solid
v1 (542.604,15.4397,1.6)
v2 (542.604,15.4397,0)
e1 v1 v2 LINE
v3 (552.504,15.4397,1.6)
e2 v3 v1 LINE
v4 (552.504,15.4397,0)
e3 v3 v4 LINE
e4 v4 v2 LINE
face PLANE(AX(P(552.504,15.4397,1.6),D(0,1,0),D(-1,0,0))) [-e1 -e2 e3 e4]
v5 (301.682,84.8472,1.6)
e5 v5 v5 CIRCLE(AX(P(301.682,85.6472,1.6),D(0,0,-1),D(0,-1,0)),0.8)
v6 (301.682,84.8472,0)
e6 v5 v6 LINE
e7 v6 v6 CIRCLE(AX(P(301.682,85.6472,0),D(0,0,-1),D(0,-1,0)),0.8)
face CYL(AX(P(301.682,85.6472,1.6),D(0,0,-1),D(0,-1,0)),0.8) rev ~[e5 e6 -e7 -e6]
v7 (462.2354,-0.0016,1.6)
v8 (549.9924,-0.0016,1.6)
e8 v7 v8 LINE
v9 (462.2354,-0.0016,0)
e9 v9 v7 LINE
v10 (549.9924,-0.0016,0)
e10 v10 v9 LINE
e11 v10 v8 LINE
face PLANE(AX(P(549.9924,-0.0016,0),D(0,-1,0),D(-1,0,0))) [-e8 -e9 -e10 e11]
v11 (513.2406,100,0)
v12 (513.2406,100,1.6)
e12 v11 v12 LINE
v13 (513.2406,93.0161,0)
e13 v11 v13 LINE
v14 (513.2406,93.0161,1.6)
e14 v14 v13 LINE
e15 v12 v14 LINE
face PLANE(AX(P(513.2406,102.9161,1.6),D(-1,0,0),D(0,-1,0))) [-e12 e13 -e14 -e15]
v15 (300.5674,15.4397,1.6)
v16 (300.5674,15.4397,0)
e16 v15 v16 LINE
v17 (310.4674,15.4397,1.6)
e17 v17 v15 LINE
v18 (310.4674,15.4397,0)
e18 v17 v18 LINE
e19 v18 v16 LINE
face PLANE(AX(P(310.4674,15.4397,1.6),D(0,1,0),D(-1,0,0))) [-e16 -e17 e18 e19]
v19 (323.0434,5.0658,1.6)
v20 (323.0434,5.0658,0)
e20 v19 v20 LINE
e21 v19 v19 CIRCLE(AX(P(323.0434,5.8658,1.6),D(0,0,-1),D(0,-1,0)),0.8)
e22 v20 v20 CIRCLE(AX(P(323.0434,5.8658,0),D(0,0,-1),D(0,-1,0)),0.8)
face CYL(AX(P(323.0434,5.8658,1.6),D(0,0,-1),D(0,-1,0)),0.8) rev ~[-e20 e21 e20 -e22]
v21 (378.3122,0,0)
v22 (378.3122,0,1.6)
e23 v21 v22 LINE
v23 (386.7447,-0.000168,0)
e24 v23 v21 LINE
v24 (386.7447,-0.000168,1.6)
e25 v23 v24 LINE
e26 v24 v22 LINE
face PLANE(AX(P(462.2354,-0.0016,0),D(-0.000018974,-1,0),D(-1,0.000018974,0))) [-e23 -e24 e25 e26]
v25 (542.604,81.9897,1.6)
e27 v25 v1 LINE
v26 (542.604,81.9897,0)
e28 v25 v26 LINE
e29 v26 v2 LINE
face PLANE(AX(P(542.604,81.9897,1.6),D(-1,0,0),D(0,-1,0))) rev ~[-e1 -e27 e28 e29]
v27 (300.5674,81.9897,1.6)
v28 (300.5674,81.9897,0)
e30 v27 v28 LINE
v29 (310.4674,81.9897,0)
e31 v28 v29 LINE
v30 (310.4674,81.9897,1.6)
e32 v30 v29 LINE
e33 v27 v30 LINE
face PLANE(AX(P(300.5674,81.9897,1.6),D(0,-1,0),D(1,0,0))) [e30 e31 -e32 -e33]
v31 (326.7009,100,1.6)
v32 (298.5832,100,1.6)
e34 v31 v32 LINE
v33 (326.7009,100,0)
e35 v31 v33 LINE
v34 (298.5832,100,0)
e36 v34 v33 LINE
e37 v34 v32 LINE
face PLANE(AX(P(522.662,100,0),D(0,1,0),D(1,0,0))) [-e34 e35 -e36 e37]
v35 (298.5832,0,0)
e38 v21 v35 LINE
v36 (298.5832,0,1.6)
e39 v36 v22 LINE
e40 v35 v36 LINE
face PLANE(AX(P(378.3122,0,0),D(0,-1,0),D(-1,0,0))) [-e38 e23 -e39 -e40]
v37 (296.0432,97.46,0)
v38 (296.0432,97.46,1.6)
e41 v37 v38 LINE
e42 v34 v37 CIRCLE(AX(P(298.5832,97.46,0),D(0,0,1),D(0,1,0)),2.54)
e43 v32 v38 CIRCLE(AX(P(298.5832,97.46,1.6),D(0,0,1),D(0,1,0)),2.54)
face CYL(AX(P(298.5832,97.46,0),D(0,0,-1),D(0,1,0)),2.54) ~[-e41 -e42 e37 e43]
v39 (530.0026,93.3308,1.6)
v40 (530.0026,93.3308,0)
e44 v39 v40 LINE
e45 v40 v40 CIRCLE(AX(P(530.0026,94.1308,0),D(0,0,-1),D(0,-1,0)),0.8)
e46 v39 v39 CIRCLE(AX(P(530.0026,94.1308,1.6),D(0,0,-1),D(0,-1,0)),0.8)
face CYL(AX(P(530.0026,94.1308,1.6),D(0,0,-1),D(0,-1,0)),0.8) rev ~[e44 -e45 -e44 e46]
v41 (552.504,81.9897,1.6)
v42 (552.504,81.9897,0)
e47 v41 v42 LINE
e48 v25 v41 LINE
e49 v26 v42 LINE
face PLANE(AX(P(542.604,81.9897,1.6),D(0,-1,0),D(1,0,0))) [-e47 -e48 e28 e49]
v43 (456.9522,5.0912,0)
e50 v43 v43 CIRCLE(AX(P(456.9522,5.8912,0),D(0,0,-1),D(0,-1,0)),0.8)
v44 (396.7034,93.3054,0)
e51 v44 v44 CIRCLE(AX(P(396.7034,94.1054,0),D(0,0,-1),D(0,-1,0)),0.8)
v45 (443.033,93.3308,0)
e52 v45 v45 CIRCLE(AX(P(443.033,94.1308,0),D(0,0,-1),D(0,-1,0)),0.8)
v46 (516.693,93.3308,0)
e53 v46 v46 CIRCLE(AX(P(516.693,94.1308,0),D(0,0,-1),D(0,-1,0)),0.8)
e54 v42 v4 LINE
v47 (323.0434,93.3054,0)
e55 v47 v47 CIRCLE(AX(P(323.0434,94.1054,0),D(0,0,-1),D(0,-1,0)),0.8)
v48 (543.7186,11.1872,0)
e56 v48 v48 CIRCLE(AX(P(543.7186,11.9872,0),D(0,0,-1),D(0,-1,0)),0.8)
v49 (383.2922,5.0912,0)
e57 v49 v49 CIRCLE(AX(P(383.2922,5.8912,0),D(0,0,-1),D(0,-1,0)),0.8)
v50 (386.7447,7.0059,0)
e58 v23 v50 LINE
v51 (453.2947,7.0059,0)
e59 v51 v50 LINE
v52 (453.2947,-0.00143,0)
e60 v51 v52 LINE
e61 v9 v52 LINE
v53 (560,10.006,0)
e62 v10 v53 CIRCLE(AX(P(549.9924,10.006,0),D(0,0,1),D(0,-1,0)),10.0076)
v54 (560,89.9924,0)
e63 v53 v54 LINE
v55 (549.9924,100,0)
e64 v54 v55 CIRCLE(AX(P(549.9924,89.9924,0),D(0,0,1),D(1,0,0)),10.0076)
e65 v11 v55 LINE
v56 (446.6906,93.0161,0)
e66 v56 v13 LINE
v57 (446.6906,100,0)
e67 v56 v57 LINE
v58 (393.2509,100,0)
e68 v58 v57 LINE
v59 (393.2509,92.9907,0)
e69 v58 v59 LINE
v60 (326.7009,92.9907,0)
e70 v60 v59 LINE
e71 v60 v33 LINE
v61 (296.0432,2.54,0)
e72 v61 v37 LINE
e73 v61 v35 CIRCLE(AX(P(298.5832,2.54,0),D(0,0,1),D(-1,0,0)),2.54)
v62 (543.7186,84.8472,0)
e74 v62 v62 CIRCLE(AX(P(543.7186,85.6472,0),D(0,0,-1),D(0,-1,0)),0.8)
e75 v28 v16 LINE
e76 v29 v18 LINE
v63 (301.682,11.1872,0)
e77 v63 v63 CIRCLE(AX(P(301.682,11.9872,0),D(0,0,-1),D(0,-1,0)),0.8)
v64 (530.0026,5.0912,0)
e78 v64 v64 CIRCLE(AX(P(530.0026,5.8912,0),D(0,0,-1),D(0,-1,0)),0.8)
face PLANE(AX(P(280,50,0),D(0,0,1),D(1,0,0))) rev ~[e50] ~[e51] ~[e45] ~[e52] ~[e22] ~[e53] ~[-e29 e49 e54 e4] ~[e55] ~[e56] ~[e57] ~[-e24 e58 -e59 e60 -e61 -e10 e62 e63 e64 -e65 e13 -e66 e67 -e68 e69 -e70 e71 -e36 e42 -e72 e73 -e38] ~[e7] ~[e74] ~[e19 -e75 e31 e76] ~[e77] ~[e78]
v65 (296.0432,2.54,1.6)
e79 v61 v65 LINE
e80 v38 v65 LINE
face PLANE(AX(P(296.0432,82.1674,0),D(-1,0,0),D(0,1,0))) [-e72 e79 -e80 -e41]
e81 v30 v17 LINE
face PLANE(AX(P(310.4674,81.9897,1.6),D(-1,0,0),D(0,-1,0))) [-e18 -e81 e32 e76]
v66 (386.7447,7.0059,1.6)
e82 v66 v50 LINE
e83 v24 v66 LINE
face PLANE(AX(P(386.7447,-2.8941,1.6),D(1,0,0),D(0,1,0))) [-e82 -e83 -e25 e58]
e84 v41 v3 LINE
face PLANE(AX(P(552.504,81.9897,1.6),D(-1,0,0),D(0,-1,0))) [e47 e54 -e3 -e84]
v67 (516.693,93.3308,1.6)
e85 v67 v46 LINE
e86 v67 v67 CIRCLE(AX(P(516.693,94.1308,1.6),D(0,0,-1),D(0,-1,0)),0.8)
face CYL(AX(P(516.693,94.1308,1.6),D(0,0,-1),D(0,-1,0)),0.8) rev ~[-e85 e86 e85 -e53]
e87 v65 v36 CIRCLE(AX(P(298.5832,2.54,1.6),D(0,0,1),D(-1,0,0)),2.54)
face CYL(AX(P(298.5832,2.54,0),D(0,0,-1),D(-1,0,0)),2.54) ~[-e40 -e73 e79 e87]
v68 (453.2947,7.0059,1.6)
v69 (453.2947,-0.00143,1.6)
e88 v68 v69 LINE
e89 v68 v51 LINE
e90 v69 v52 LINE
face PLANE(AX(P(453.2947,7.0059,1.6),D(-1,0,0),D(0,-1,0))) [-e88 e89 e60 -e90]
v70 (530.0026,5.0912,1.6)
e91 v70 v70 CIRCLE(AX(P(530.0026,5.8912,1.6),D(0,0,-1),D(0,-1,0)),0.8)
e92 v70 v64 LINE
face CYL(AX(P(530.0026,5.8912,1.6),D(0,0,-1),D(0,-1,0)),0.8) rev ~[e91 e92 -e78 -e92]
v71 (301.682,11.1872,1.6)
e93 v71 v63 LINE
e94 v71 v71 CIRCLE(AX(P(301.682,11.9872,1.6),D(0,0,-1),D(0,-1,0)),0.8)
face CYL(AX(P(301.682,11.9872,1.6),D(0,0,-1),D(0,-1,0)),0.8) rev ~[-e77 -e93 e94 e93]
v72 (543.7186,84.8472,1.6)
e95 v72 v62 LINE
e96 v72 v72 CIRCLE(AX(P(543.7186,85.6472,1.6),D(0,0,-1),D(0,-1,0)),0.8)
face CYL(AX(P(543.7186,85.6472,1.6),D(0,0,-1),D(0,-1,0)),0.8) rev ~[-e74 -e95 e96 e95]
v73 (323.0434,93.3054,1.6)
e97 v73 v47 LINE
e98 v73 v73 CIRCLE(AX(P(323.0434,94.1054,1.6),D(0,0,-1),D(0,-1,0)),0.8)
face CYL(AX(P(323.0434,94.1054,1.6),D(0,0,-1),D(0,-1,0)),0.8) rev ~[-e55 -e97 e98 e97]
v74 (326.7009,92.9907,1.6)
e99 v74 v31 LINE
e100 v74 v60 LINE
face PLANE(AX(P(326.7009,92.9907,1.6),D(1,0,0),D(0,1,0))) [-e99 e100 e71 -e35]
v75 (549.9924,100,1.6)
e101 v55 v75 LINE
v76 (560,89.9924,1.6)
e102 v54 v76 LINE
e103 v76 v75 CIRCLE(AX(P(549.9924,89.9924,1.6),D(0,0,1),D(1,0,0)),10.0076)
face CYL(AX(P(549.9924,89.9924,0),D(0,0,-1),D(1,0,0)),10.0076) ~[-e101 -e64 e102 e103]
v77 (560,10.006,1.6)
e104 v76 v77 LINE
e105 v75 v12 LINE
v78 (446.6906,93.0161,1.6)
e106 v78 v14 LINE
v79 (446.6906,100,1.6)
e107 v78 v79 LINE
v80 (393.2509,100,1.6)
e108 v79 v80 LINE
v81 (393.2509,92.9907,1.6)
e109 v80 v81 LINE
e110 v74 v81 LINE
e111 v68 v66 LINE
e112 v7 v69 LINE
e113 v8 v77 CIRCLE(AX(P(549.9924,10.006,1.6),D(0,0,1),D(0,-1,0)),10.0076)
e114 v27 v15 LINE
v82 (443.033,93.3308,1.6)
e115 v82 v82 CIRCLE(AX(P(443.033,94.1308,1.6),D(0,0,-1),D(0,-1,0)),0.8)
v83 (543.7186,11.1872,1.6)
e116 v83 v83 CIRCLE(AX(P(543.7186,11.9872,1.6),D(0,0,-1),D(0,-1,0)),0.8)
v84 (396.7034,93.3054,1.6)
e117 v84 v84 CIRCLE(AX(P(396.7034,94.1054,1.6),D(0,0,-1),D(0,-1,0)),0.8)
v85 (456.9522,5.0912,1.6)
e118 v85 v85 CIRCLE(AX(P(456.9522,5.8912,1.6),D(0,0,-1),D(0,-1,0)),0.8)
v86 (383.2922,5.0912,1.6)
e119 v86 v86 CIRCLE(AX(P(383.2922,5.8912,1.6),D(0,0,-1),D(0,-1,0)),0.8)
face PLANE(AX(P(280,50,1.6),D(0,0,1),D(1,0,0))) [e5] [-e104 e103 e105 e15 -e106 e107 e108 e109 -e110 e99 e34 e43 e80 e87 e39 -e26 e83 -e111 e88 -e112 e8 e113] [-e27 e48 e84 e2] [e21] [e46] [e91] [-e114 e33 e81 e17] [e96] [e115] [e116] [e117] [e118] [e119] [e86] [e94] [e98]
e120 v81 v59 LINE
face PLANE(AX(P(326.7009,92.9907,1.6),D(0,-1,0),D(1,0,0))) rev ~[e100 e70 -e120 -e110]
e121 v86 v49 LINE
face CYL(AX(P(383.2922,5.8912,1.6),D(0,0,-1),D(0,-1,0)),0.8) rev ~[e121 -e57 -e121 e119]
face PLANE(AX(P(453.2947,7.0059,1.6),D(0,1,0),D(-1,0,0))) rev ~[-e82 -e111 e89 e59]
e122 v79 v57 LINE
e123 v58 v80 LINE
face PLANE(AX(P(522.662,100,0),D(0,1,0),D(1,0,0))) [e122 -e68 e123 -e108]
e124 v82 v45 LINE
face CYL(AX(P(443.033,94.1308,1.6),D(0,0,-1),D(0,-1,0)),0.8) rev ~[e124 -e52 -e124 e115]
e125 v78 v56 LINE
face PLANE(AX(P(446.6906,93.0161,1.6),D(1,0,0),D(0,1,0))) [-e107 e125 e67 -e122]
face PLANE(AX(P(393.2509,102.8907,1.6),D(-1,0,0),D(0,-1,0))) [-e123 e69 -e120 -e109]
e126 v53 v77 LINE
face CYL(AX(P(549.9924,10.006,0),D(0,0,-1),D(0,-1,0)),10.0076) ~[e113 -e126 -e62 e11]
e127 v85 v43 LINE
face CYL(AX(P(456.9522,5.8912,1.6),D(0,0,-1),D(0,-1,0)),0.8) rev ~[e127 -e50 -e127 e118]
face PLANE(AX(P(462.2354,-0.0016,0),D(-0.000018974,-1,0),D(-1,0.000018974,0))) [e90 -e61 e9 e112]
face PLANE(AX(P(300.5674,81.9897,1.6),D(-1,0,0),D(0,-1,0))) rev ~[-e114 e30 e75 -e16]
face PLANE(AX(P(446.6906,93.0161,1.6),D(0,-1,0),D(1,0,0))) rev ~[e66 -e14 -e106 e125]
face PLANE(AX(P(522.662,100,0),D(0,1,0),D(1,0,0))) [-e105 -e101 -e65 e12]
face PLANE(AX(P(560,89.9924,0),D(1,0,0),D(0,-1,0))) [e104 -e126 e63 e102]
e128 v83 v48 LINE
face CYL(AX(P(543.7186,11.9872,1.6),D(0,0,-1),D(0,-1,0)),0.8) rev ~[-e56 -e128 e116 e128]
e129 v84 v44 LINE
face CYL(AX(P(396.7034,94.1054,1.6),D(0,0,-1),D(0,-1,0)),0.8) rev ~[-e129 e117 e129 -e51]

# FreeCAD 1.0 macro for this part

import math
import FreeCAD as App
import Part
import Sketcher
from FreeCAD import Vector
Q = App.Units.Quantity


def add_polygon(sketch, points):
    """Adds a closed chain of lines whose ends are joined by coincident constraints."""
    first, n = sketch.GeometryCount, len(points)
    for a, b in zip(points, points[1:] + points[:1]):
        sketch.addGeometry(Part.LineSegment(App.Vector(*a, 0), App.Vector(*b, 0)), False)
    for i in range(n):
        sketch.addConstraint(Sketcher.Constraint("Coincident", first + i, 2, first + (i + 1) % n, 1))

doc = App.newDocument("Part")
params = doc.addObject("Spreadsheet::Sheet", "Params")
for row, (alias, value) in enumerate([
    ("sketch1_radius", "0.1 in"),
    ("sketch1_radius2", "0.394 in"),
    ("sketch1_width", "9.898 in"),
    ("sketch1_width2", "3.455 in"),
    ("sketch1_height", "3.737 in"),
    ("pad1_length", "0.0629921 in"),
    ("sketch2_diameter", "0.063 in"),
    ("hole_diameter", "0.0629921 in"),
    ("hole_depth", "8 mm"),
    ("pocket1_length", "0.0629921 in"),
], start=1):
    params.set(f"A{row}", alias)
    params.set(f"B{row}", "=" + value)
    params.setAlias(f"B{row}", alias)

body = doc.addObject("PartDesign::Body", "Body")

# Sketch on XY plane
sketch1 = body.newObject("Sketcher::SketchObject", "Sketch")
sketch1.AttachmentSupport = (doc.getObject("XY_Plane"), [""])
sketch1.MapMode = "FlatFace"
sketch1.addGeometry(Part.LineSegment(Vector(560, 10, 0), Vector(560, 90, 0)), False)
sketch1.addGeometry(Part.ArcOfCircle(Part.Circle(Vector(550, 90, 0), Vector(0, 0, 1), 10), math.radians(0), math.radians(90)), False)
sketch1.addGeometry(Part.LineSegment(Vector(550, 100, 0), Vector(298.6, 100, 0)), False)
sketch1.addGeometry(Part.ArcOfCircle(Part.Circle(Vector(298.6, 97.5, 0), Vector(0, 0, 1), 2.5), math.radians(90), math.radians(180)), False)
sketch1.addGeometry(Part.LineSegment(Vector(296, 97.5, 0), Vector(296, 2.5, 0)), False)
sketch1.addGeometry(Part.ArcOfCircle(Part.Circle(Vector(298.6, 2.5, 0), Vector(0, 0, 1), 2.5), math.radians(180), math.radians(270)), False)
sketch1.addGeometry(Part.LineSegment(Vector(298.6, 0, 0), Vector(378.3, 0, 0)), False)
sketch1.addGeometry(Part.LineSegment(Vector(378.3, 0, 0), Vector(462.2, 0, 0)), False)
sketch1.addGeometry(Part.LineSegment(Vector(462.2, 0, 0), Vector(550, 0, 0)), False)
sketch1.addGeometry(Part.ArcOfCircle(Part.Circle(Vector(550, 10, 0), Vector(0, 0, 1), 10), math.radians(-90), math.radians(0)), False)
sketch1.addConstraint(Sketcher.Constraint("Tangent", 0, 2, 1, 1))
sketch1.addConstraint(Sketcher.Constraint("Tangent", 1, 2, 2, 1))
sketch1.addConstraint(Sketcher.Constraint("Tangent", 2, 2, 3, 1))
sketch1.addConstraint(Sketcher.Constraint("Tangent", 3, 2, 4, 1))
sketch1.addConstraint(Sketcher.Constraint("Tangent", 4, 2, 5, 1))
sketch1.addConstraint(Sketcher.Constraint("Tangent", 5, 2, 6, 1))
sketch1.addConstraint(Sketcher.Constraint("Coincident", 6, 2, 7, 1))
sketch1.addConstraint(Sketcher.Constraint("Coincident", 7, 2, 8, 1))
sketch1.addConstraint(Sketcher.Constraint("Tangent", 8, 2, 9, 1))
sketch1.addConstraint(Sketcher.Constraint("Tangent", 9, 2, 0, 1))
sketch1.addConstraint(Sketcher.Constraint("Vertical", 0))
sketch1.addConstraint(Sketcher.Constraint("Horizontal", 2))
sketch1.addConstraint(Sketcher.Constraint("Vertical", 4))
sketch1.addConstraint(Sketcher.Constraint("Horizontal", 6))
sketch1.addConstraint(Sketcher.Constraint("Horizontal", 8))
sketch1.addConstraint(Sketcher.Constraint("Equal", 3, 5))
sketch1.addConstraint(Sketcher.Constraint("Equal", 1, 9))
sketch1.addConstraint(Sketcher.Constraint("PointOnObject", 5, 2, -1))
sketch1.addConstraint(Sketcher.Constraint("Radius", 3, Q("0.1 in")))
sketch1.addConstraint(Sketcher.Constraint("Angle", 7, Q("-0.001 deg")))
sketch1.addConstraint(Sketcher.Constraint("Radius", 1, Q("0.394 in")))
sketch1.addConstraint(Sketcher.Constraint("DistanceX", 2, 2, 2, 1, Q("9.898 in")))
sketch1.addConstraint(Sketcher.Constraint("DistanceX", 8, 1, 8, 2, Q("3.455 in")))
sketch1.addConstraint(Sketcher.Constraint("DistanceY", 4, 2, 4, 1, Q("3.737 in")))
sketch1.addConstraint(Sketcher.Constraint("DistanceX", 6, 1, 6, 2, Q("79.729 mm")))
sketch1.addConstraint(Sketcher.Constraint("DistanceX", -1, 1, 1, 3, Q("549.9924 mm")))
sketch1.setExpression("Constraints[18]", "Params.sketch1_radius")
sketch1.setExpression("Constraints[20]", "Params.sketch1_radius2")
sketch1.setExpression("Constraints[21]", "Params.sketch1_width")
sketch1.setExpression("Constraints[22]", "Params.sketch1_width2")
sketch1.setExpression("Constraints[23]", "Params.sketch1_height")
pad1 = body.newObject("PartDesign::Pad", "Pad")
pad1.Profile = sketch1
pad1.setExpression("Length", "Params.pad1_length")

# Sketch on XY plane
sketch2 = body.newObject("Sketcher::SketchObject", "Sketch001")
sketch2.AttachmentSupport = (doc.getObject("XY_Plane"), [""])
sketch2.MapMode = "FlatFace"
sketch2.AttachmentOffset = App.Placement(Vector(0, 0, 0.0629921 * 25.4), App.Rotation())
sketch2.addGeometry(Part.Circle(Vector(530, 94.1, 0), Vector(0, 0, 1), 0.8), False)
sketch2.addGeometry(Part.Circle(Vector(516.7, 94.1, 0), Vector(0, 0, 1), 0.8), False)
sketch2.addGeometry(Part.Circle(Vector(543.7, 85.6, 0), Vector(0, 0, 1), 0.8), False)
sketch2.addGeometry(Part.Circle(Vector(543.7, 12, 0), Vector(0, 0, 1), 0.8), False)
sketch2.addGeometry(Part.Circle(Vector(530, 5.9, 0), Vector(0, 0, 1), 0.8), False)
sketch2.addGeometry(Part.Circle(Vector(443, 94.1, 0), Vector(0, 0, 1), 0.8), False)
sketch2.addGeometry(Part.Circle(Vector(457, 5.9, 0), Vector(0, 0, 1), 0.8), False)
sketch2.addGeometry(Part.Circle(Vector(383.3, 5.9, 0), Vector(0, 0, 1), 0.8), False)
sketch2.addGeometry(Part.Circle(Vector(396.7, 94.1, 0), Vector(0, 0, 1), 0.8), False)
sketch2.addGeometry(Part.Circle(Vector(323, 94.1, 0), Vector(0, 0, 1), 0.8), False)
sketch2.addGeometry(Part.Circle(Vector(301.7, 85.6, 0), Vector(0, 0, 1), 0.8), False)
sketch2.addGeometry(Part.Circle(Vector(323, 5.9, 0), Vector(0, 0, 1), 0.8), False)
sketch2.addGeometry(Part.Circle(Vector(301.7, 12, 0), Vector(0, 0, 1), 0.8), False)
sketch2.addConstraint(Sketcher.Constraint("Equal", 0, 1))
sketch2.addConstraint(Sketcher.Constraint("Equal", 1, 2))
sketch2.addConstraint(Sketcher.Constraint("Equal", 2, 3))
sketch2.addConstraint(Sketcher.Constraint("Equal", 3, 4))
sketch2.addConstraint(Sketcher.Constraint("Equal", 4, 5))
sketch2.addConstraint(Sketcher.Constraint("Equal", 5, 6))
sketch2.addConstraint(Sketcher.Constraint("Equal", 6, 7))
sketch2.addConstraint(Sketcher.Constraint("Equal", 7, 8))
sketch2.addConstraint(Sketcher.Constraint("Equal", 8, 9))
sketch2.addConstraint(Sketcher.Constraint("Equal", 9, 10))
sketch2.addConstraint(Sketcher.Constraint("Equal", 10, 11))
sketch2.addConstraint(Sketcher.Constraint("Equal", 11, 12))
sketch2.addConstraint(Sketcher.Constraint("Horizontal", 0, 3, 1, 3))
sketch2.addConstraint(Sketcher.Constraint("Horizontal", 1, 3, 5, 3))
sketch2.addConstraint(Sketcher.Constraint("Horizontal", 4, 3, 6, 3))
sketch2.addConstraint(Sketcher.Constraint("Horizontal", 6, 3, 7, 3))
sketch2.addConstraint(Sketcher.Constraint("Horizontal", 8, 3, 9, 3))
sketch2.addConstraint(Sketcher.Constraint("Horizontal", 2, 3, 10, 3))
sketch2.addConstraint(Sketcher.Constraint("Horizontal", 3, 3, 12, 3))
sketch2.addConstraint(Sketcher.Constraint("Vertical", 2, 3, 3, 3))
sketch2.addConstraint(Sketcher.Constraint("Vertical", 0, 3, 4, 3))
sketch2.addConstraint(Sketcher.Constraint("Vertical", 9, 3, 11, 3))
sketch2.addConstraint(Sketcher.Constraint("Vertical", 10, 3, 12, 3))
sketch2.addConstraint(Sketcher.Constraint("Diameter", 0, Q("0.063 in")))
sketch2.addConstraint(Sketcher.Constraint("DistanceY", 3, 3, 2, 3, Q("2.9 in")))
sketch2.addConstraint(Sketcher.Constraint("DistanceX", 5, 3, 1, 3, Q("2.9 in")))
sketch2.addConstraint(Sketcher.Constraint("DistanceX", 7, 3, 6, 3, Q("2.9 in")))
sketch2.addConstraint(Sketcher.Constraint("DistanceX", 9, 3, 8, 3, Q("2.9 in")))
sketch2.addConstraint(Sketcher.Constraint("DistanceX", 0, 3, 2, 3, Q("0.54 in")))
sketch2.addConstraint(Sketcher.Constraint("DistanceY", 4, 3, 3, 3, Q("0.24 in")))
sketch2.addConstraint(Sketcher.Constraint("DistanceX", -1, 1, 2, 3, Q("21.4062441 in")))
sketch2.addConstraint(Sketcher.Constraint("DistanceX", 1, 3, 0, 3, Q("0.524 in")))
sketch2.addConstraint(Sketcher.Constraint("DistanceY", 2, 3, 0, 3, Q("0.334 in")))
sketch2.addConstraint(Sketcher.Constraint("DistanceX", 6, 3, 4, 3, Q("2.876 in")))
sketch2.addConstraint(Sketcher.Constraint("DistanceX", 8, 3, 5, 3, Q("1.824 in")))
sketch2.addConstraint(Sketcher.Constraint("DistanceY", 8, 3, 5, 3, Q("0.001 in")))
sketch2.addConstraint(Sketcher.Constraint("DistanceX", 10, 3, 9, 3, Q("0.841 in")))
sketch2.addConstraint(Sketcher.Constraint("DistanceY", 11, 3, 7, 3, Q("0.001 in")))
sketch2.addConstraint(Sketcher.Constraint("DistanceY", -1, 1, 0, 3, Q("94.1308 mm")))
sketch2.setExpression("Constraints[23]", "Params.sketch2_diameter")
doc.recompute()
hole = body.newObject("PartDesign::Hole", "Hole")
hole.Profile = sketch2
hole.ThreadType = "None"
hole.setExpression("Diameter", "Params.hole_diameter")
hole.DepthType = "Dimension"
hole.setExpression("Depth", "Params.hole_depth")
hole.DrillPoint = "Angled"
hole.DrillPointAngle = 118

# Sketch on XY plane
sketch3 = body.newObject("Sketcher::SketchObject", "Sketch002")
sketch3.AttachmentSupport = (doc.getObject("XY_Plane"), [""])
sketch3.MapMode = "FlatFace"
sketch3.AttachmentOffset = App.Placement(Vector(0, 0, 0.0629921 * 25.4), App.Rotation())
add_polygon(sketch3, [(553, 82), (543, 82), (543, 15), (553, 15)])  # lines 0-3
add_polygon(sketch3, [(453, -3), (453, 7), (387, 7), (387, -3)])  # lines 4-7
add_polygon(sketch3, [(301, 15), (310, 15), (310, 82), (301, 82)])  # lines 8-11
add_polygon(sketch3, [(327, 103), (327, 93), (393, 93), (393, 103)])  # lines 12-15
add_polygon(sketch3, [(447, 103), (447, 93), (513, 93), (513, 103)])  # lines 16-19
sketch3.addConstraint(Sketcher.Constraint("Horizontal", 0))
sketch3.addConstraint(Sketcher.Constraint("Vertical", 1))
sketch3.addConstraint(Sketcher.Constraint("Horizontal", 2))
sketch3.addConstraint(Sketcher.Constraint("Vertical", 3))
sketch3.addConstraint(Sketcher.Constraint("Vertical", 4))
sketch3.addConstraint(Sketcher.Constraint("Horizontal", 5))
sketch3.addConstraint(Sketcher.Constraint("Vertical", 6))
sketch3.addConstraint(Sketcher.Constraint("Horizontal", 7))
sketch3.addConstraint(Sketcher.Constraint("Horizontal", 8))
sketch3.addConstraint(Sketcher.Constraint("Vertical", 9))
sketch3.addConstraint(Sketcher.Constraint("Horizontal", 10))
sketch3.addConstraint(Sketcher.Constraint("Vertical", 11))
sketch3.addConstraint(Sketcher.Constraint("Vertical", 12))
sketch3.addConstraint(Sketcher.Constraint("Horizontal", 13))
sketch3.addConstraint(Sketcher.Constraint("Vertical", 14))
sketch3.addConstraint(Sketcher.Constraint("Horizontal", 15))
sketch3.addConstraint(Sketcher.Constraint("Vertical", 16))
sketch3.addConstraint(Sketcher.Constraint("Horizontal", 17))
sketch3.addConstraint(Sketcher.Constraint("Vertical", 18))
sketch3.addConstraint(Sketcher.Constraint("Horizontal", 19))
sketch3.addConstraint(Sketcher.Constraint("Horizontal", 2, 2, 8, 2))
sketch3.addConstraint(Sketcher.Constraint("Horizontal", 3, 2, 9, 2))
sketch3.addConstraint(Sketcher.Constraint("Equal", 2, 8))
sketch3.addConstraint(Sketcher.Constraint("Equal", 7, 13))
sketch3.addConstraint(Sketcher.Constraint("Equal", 15, 17))
sketch3.addConstraint(Sketcher.Constraint("Equal", 19, 1))
sketch3.addConstraint(Sketcher.Constraint("Equal", 10, 4))
sketch3.addConstraint(Sketcher.Constraint("Equal", 6, 12))
sketch3.addConstraint(Sketcher.Constraint("Equal", 14, 16))
sketch3.addConstraint(Sketcher.Constraint("DistanceX", 16, 2, 4, 2, Q("0.26 in")))
sketch3.addConstraint(Sketcher.Constraint("DistanceY", 6, 2, 13, 2, Q("3.775 in")))
sketch3.addConstraint(Sketcher.Constraint("DistanceY", 13, 2, 16, 2, Q("0.001 in")))
sketch3.addConstraint(Sketcher.Constraint("DistanceX", 0, 2, 0, 1, Q("9.9 mm")))
sketch3.addConstraint(Sketcher.Constraint("DistanceX", 5, 2, 5, 1, Q("66.55 mm")))
sketch3.addConstraint(Sketcher.Constraint("DistanceX", 5, 2, 1, 2, Q("6.1362 in")))
sketch3.addConstraint(Sketcher.Constraint("DistanceY", 6, 2, 1, 2, Q("0.7218 in")))
sketch3.addConstraint(Sketcher.Constraint("DistanceX", 10, 2, 5, 2, Q("3.3928 in")))
sketch3.addConstraint(Sketcher.Constraint("DistanceX", 9, 2, 13, 2, Q("3.2592 in")))
sketch3.addConstraint(Sketcher.Constraint("DistanceX", -1, 1, 0, 2, Q("542.604 mm")))
sketch3.addConstraint(Sketcher.Constraint("DistanceY", -1, 1, 0, 2, Q("81.9897 mm")))
pocket1 = body.newObject("PartDesign::Pocket", "Pocket")
pocket1.Profile = sketch3
pocket1.setExpression("Length", "Params.pocket1_length")

doc.recompute()
